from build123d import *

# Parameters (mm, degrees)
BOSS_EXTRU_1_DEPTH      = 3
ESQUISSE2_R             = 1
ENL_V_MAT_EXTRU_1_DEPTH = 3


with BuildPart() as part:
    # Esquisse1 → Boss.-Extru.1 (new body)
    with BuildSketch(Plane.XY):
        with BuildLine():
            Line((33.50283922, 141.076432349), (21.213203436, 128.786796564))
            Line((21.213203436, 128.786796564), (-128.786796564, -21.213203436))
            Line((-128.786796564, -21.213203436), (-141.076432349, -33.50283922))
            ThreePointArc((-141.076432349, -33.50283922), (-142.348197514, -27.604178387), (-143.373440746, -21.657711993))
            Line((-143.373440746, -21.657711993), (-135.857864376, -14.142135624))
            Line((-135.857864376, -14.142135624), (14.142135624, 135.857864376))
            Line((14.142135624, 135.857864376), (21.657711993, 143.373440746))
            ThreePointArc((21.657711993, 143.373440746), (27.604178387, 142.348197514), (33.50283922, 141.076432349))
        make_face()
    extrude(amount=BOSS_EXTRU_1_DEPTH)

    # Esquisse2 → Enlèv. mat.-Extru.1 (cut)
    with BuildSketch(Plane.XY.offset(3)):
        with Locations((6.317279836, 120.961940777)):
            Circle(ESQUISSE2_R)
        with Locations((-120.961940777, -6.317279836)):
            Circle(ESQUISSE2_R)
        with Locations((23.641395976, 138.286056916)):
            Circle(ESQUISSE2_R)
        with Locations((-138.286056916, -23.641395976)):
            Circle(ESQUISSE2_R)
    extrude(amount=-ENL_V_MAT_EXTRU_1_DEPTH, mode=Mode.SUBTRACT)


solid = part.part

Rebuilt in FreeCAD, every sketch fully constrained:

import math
import FreeCAD as App
import Part
import Sketcher

V = App.Vector
Q = App.Units.Quantity

doc = App.newDocument("Part")
body = doc.addObject("PartDesign::Body", "Body")

# Sketch on XY plane
sketch1 = body.newObject("Sketcher::SketchObject", "Sketch")
sketch1.AttachmentSupport = (doc.getObject("XY_Plane"), [""])
sketch1.MapMode = "FlatFace"
sketch1.addGeometry([
    Part.LineSegment(V(21.213203, 128.786797, 0), V(33.502839, 141.076432, 0)),  # 0
    Part.ArcOfCircle(Part.Circle(V(0, -0.000001, 0), V(0, 0, 1), 145.000001), math.radians(76.640863), math.radians(81.409956)),  # 1
    Part.LineSegment(V(21.657712, 143.373441, 0), V(14.142136, 135.857864, 0)),  # 2
    Part.LineSegment(V(14.142136, 135.857864, 0), V(-135.857864, -14.142136, 0)),  # 3
    Part.LineSegment(V(-135.857864, -14.142136, 0), V(-143.373441, -21.657712, 0)),  # 4
    Part.ArcOfCircle(Part.Circle(V(0.000001, 0, 0), V(0, 0, 1), 145.000001), math.radians(-171.409956), math.radians(-166.640863)),  # 5
    Part.LineSegment(V(-141.076432, -33.502839, 0), V(-128.786797, -21.213203, 0)),  # 6
    Part.LineSegment(V(-128.786797, -21.213203, 0), V(21.213203, 128.786797, 0)),  # 7
], False)
sketch1.addConstraint([
    Sketcher.Constraint("Coincident", 0, 2, 1, 1),
    Sketcher.Constraint("Coincident", 1, 2, 2, 1),
    Sketcher.Constraint("Coincident", 2, 2, 3, 1),
    Sketcher.Constraint("Coincident", 3, 2, 4, 1),
    Sketcher.Constraint("Coincident", 4, 2, 5, 1),
    Sketcher.Constraint("Coincident", 5, 2, 6, 1),
    Sketcher.Constraint("Coincident", 6, 2, 7, 1),
    Sketcher.Constraint("Coincident", 7, 2, 0, 1),
    Sketcher.Constraint("Coincident", 1, 3, -1, 1),
    Sketcher.Constraint("Coincident", 5, 3, -1, 1),
    Sketcher.Constraint("Equal", 1, 5),
    Sketcher.Constraint("Parallel", 0, 2),
    Sketcher.Constraint("Parallel", 2, 3),
    Sketcher.Constraint("Parallel", 3, 4),
    Sketcher.Constraint("Parallel", 4, 6),
    Sketcher.Constraint("Parallel", 6, 7),
    Sketcher.Constraint("Equal", 2, 4),
    Sketcher.Constraint("Equal", 0, 6),
    Sketcher.Constraint("Equal", 3, 7),
    Sketcher.Constraint("Radius", 1, 145.000001),
    Sketcher.Constraint("Angle", 0, Q("45 deg")),
    Sketcher.Constraint("DistanceX", 3, 2, 2, 2, 150.0),
    Sketcher.Constraint("Distance", 0, 17.38017),
    Sketcher.Constraint("Distance", 2, 10.62863),
])
pad1 = body.newObject("PartDesign::Pad", "Pad")
pad1.Profile = sketch1
pad1.Length = 3

# Sketch on XY plane
sketch2 = body.newObject("Sketcher::SketchObject", "Sketch001")
sketch2.AttachmentSupport = (doc.getObject("XY_Plane"), [""])
sketch2.MapMode = "FlatFace"
sketch2.AttachmentOffset = App.Placement(V(0, 0, 3), App.Rotation())
sketch2.addGeometry([
    Part.Circle(V(6.31728, 120.961941, 0), V(0, 0, 1), 1),
    Part.Circle(V(-120.961941, -6.31728, 0), V(0, 0, 1), 1),
    Part.Circle(V(23.641396, 138.286057, 0), V(0, 0, 1), 1),
    Part.Circle(V(-138.286057, -23.641396, 0), V(0, 0, 1), 1),
], False)
sketch2.addConstraint([
    Sketcher.Constraint("Equal", 0, 1),
    Sketcher.Constraint("Equal", 1, 2),
    Sketcher.Constraint("Equal", 2, 3),
    Sketcher.Constraint("Diameter", 0, 2.0),
    Sketcher.Constraint("DistanceX", -1, 1, 0, 3, 6.31728),
    Sketcher.Constraint("DistanceY", -1, 1, 0, 3, 120.961941),
    Sketcher.Constraint("DistanceX", 1, 3, -1, 1, 120.961941),
    Sketcher.Constraint("DistanceY", 1, 3, -1, 1, 6.31728),
    Sketcher.Constraint("DistanceX", -1, 1, 2, 3, 23.641396),
    Sketcher.Constraint("DistanceY", -1, 1, 2, 3, 138.286057),
    Sketcher.Constraint("DistanceX", 3, 3, -1, 1, 138.286057),
    Sketcher.Constraint("DistanceY", 3, 3, -1, 1, 23.641396),
])
pocket1 = body.newObject("PartDesign::Pocket", "Pocket")
pocket1.Profile = sketch2
pocket1.Length = 3

doc.recompute()
